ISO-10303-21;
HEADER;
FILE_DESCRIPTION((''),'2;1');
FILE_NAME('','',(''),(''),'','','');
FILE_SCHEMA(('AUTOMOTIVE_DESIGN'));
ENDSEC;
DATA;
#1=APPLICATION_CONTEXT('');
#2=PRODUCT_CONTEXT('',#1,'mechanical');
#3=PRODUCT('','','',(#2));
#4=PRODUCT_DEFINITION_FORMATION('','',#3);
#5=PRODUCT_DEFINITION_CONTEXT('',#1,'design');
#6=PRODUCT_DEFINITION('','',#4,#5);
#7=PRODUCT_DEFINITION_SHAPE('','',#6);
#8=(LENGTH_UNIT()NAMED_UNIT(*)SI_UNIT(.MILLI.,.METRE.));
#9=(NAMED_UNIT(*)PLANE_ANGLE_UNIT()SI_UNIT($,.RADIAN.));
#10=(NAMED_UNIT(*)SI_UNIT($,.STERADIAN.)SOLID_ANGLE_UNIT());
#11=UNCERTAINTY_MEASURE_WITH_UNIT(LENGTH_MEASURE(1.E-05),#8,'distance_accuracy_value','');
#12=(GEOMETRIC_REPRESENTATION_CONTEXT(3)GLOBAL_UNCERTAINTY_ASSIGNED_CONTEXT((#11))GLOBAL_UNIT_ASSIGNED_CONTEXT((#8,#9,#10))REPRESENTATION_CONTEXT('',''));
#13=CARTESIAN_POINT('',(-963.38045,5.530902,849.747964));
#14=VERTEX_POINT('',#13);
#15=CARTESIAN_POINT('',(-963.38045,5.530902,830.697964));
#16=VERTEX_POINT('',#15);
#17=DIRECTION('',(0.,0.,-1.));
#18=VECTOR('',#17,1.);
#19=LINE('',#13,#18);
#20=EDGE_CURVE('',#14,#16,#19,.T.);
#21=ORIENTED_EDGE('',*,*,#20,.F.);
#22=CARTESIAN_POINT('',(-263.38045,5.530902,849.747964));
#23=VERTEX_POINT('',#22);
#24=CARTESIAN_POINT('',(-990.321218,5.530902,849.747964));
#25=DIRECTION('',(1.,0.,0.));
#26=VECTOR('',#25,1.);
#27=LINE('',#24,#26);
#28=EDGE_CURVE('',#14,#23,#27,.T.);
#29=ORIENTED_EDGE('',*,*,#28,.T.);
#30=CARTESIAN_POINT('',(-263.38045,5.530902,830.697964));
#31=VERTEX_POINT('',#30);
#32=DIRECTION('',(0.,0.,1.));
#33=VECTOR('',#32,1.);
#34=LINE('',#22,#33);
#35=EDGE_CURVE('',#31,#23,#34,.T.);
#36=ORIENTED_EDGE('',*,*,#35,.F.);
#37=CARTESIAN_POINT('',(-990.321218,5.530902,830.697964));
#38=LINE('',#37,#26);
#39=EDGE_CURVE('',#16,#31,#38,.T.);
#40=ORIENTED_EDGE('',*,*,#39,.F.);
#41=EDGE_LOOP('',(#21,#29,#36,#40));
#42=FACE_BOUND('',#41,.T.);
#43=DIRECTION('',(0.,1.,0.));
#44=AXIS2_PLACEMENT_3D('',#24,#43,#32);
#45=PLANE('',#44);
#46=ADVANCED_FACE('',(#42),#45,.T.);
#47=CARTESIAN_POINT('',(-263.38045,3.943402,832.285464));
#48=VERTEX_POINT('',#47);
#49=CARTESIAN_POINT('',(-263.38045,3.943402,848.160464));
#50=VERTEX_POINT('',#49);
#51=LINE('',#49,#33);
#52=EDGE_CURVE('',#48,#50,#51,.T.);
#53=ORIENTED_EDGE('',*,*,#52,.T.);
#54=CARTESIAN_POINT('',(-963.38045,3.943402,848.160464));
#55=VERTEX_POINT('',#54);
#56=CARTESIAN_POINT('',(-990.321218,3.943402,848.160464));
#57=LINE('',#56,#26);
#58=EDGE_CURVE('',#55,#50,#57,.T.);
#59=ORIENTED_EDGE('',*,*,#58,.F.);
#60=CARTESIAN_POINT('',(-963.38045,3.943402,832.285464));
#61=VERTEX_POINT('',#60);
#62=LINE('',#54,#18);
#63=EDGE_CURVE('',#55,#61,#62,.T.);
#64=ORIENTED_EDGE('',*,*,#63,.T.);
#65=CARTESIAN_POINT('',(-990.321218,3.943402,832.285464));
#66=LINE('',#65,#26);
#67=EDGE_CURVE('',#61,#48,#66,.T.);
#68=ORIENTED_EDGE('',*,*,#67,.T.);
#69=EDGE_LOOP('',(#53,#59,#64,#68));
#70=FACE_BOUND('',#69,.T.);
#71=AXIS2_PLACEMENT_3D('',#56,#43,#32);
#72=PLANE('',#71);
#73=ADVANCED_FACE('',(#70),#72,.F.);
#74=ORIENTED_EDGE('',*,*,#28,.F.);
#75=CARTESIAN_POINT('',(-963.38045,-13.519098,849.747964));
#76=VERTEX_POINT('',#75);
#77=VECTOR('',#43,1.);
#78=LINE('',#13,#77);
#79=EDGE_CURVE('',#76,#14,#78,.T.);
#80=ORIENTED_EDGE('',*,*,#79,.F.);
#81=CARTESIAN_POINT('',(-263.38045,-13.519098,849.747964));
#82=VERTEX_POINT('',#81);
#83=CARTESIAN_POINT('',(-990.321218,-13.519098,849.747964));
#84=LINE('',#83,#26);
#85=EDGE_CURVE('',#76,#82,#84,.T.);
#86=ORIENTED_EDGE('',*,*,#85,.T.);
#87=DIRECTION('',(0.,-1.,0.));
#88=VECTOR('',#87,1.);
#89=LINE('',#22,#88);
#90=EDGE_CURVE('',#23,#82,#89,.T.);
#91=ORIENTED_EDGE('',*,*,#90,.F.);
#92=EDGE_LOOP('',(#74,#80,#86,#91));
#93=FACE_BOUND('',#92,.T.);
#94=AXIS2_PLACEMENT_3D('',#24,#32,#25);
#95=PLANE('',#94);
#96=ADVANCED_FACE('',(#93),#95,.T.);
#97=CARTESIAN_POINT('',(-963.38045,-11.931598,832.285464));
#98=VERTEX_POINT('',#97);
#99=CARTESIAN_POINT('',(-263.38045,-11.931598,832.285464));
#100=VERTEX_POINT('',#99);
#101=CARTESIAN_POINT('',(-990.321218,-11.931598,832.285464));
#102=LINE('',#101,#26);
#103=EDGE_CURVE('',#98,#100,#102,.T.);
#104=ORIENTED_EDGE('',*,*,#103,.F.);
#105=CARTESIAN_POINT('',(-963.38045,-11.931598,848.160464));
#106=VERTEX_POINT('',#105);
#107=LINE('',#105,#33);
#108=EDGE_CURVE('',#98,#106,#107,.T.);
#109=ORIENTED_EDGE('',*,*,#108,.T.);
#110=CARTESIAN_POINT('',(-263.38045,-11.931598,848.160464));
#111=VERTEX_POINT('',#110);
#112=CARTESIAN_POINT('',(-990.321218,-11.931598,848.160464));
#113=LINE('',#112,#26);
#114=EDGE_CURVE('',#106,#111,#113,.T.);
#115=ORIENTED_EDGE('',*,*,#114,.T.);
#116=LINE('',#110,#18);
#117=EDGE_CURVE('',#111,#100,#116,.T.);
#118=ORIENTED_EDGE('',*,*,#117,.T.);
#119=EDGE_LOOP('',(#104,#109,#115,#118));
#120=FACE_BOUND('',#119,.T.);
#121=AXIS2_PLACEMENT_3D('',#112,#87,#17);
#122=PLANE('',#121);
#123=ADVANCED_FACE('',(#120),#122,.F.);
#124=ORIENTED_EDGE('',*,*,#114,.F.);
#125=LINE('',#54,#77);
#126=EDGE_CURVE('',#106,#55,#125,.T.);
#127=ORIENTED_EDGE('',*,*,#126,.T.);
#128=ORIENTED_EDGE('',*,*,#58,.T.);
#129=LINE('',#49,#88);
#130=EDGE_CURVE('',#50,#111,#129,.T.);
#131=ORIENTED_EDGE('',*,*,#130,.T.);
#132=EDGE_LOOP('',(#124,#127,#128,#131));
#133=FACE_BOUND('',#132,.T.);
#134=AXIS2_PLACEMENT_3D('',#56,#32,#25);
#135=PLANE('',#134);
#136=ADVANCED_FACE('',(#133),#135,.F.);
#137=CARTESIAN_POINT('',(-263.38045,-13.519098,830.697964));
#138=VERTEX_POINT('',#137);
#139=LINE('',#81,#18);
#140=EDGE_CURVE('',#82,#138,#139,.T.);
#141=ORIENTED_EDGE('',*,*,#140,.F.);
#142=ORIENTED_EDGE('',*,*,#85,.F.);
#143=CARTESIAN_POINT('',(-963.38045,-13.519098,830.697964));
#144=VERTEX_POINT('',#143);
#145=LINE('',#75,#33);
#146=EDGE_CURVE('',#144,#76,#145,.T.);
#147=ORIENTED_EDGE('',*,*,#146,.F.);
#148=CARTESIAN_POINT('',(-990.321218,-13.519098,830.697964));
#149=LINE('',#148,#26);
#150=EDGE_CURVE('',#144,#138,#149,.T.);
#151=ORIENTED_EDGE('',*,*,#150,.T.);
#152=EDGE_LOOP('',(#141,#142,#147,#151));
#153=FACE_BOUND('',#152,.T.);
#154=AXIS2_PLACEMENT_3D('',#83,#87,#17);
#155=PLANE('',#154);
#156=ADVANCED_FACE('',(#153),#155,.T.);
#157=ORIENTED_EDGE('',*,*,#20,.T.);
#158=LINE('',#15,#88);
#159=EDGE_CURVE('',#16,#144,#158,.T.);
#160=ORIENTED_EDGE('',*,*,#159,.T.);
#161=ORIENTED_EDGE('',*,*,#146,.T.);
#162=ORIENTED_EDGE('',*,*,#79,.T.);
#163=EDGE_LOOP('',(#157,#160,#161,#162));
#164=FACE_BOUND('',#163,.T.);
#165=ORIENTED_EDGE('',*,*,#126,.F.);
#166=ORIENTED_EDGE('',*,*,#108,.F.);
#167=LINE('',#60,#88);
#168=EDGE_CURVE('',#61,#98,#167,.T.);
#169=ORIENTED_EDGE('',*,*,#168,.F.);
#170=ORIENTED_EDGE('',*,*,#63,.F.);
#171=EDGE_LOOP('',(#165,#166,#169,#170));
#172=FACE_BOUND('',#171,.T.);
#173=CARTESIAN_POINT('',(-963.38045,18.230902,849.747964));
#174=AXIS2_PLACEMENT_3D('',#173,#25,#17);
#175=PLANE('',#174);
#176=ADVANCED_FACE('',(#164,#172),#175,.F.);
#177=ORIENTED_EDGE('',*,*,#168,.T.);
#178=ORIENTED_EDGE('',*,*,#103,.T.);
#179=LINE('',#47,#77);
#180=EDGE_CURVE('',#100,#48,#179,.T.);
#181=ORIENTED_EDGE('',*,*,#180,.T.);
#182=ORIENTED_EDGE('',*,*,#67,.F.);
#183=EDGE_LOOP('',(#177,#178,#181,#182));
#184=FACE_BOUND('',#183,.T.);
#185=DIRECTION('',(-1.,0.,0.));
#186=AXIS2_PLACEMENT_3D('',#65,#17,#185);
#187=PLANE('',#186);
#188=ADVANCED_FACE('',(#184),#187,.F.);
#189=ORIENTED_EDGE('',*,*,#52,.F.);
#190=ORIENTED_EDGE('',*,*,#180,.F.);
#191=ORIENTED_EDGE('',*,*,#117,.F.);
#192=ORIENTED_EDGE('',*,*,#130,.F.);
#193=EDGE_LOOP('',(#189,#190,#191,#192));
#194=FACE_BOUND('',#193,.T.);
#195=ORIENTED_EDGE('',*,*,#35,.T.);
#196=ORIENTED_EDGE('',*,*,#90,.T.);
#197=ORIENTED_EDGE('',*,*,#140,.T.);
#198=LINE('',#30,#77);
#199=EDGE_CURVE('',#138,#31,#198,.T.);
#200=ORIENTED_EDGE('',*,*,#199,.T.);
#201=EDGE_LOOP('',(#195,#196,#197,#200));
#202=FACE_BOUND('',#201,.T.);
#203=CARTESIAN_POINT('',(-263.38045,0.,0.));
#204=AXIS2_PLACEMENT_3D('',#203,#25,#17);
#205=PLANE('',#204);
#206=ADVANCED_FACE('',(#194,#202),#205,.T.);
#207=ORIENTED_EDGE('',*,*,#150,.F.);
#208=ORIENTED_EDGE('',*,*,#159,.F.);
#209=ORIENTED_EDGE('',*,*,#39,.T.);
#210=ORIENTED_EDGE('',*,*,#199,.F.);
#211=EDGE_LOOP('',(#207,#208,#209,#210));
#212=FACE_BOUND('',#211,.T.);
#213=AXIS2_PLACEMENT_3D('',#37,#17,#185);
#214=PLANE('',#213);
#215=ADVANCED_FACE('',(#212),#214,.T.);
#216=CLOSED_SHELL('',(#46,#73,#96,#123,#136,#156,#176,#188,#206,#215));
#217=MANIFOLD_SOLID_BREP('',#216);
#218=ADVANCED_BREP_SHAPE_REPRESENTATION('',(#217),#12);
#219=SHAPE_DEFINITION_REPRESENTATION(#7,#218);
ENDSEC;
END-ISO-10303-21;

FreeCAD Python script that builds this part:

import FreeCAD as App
import Part
import Sketcher

V = App.Vector
Q = App.Units.Quantity


def add_polygon(sketch, points):
    """Adds a closed chain of lines whose ends are joined by coincident constraints."""
    first, n = sketch.GeometryCount, len(points)
    for a, b in zip(points, points[1:] + points[:1]):
        sketch.addGeometry(Part.LineSegment(App.Vector(*a, 0), App.Vector(*b, 0)), False)
    for i in range(n):
        sketch.addConstraint(Sketcher.Constraint("Coincident", first + i, 2, first + (i + 1) % n, 1))

doc = App.newDocument("Part")
body = doc.addObject("PartDesign::Body", "Body")

# Sketch on YZ plane
sketch1 = body.newObject("Sketcher::SketchObject", "Sketch")
sketch1.AttachmentSupport = (doc.getObject("YZ_Plane"), [""])
sketch1.MapMode = "FlatFace"
sketch1.AttachmentOffset = App.Placement(V(0, 0, -263.38045), App.Rotation())
add_polygon(sketch1, [(6, 850), (-14, 850), (-14, 831), (6, 831)])  # lines 0-3
add_polygon(sketch1, [(-12, 832), (-12, 848), (4, 848), (4, 832)])  # lines 4-7
sketch1.addConstraint([
    Sketcher.Constraint("Horizontal", 0),
    Sketcher.Constraint("Vertical", 1),
    Sketcher.Constraint("Horizontal", 2),
    Sketcher.Constraint("Vertical", 3),
    Sketcher.Constraint("Vertical", 4),
    Sketcher.Constraint("Horizontal", 5),
    Sketcher.Constraint("Vertical", 6),
    Sketcher.Constraint("Horizontal", 7),
    Sketcher.Constraint("Equal", 2, 1),
    Sketcher.Constraint("Equal", 7, 4),
    Sketcher.Constraint("DistanceX", 0, 2, 0, 1, Q("0.75 in")),
    Sketcher.Constraint("DistanceX", 5, 1, 5, 2, Q("0.625 in")),
    Sketcher.Constraint("DistanceX", 0, 2, 4, 2, Q("0.0625 in")),
    Sketcher.Constraint("DistanceY", 4, 2, 0, 2, Q("0.0625 in")),
    Sketcher.Constraint("DistanceX", 0, 2, -1, 1, 13.519098),
    Sketcher.Constraint("DistanceY", -1, 1, 0, 2, 849.747964),
])
pad1 = body.newObject("PartDesign::Pad", "Pad")
pad1.Profile = sketch1
pad1.Length = 700
pad1.Reversed = True

doc.recompute()
